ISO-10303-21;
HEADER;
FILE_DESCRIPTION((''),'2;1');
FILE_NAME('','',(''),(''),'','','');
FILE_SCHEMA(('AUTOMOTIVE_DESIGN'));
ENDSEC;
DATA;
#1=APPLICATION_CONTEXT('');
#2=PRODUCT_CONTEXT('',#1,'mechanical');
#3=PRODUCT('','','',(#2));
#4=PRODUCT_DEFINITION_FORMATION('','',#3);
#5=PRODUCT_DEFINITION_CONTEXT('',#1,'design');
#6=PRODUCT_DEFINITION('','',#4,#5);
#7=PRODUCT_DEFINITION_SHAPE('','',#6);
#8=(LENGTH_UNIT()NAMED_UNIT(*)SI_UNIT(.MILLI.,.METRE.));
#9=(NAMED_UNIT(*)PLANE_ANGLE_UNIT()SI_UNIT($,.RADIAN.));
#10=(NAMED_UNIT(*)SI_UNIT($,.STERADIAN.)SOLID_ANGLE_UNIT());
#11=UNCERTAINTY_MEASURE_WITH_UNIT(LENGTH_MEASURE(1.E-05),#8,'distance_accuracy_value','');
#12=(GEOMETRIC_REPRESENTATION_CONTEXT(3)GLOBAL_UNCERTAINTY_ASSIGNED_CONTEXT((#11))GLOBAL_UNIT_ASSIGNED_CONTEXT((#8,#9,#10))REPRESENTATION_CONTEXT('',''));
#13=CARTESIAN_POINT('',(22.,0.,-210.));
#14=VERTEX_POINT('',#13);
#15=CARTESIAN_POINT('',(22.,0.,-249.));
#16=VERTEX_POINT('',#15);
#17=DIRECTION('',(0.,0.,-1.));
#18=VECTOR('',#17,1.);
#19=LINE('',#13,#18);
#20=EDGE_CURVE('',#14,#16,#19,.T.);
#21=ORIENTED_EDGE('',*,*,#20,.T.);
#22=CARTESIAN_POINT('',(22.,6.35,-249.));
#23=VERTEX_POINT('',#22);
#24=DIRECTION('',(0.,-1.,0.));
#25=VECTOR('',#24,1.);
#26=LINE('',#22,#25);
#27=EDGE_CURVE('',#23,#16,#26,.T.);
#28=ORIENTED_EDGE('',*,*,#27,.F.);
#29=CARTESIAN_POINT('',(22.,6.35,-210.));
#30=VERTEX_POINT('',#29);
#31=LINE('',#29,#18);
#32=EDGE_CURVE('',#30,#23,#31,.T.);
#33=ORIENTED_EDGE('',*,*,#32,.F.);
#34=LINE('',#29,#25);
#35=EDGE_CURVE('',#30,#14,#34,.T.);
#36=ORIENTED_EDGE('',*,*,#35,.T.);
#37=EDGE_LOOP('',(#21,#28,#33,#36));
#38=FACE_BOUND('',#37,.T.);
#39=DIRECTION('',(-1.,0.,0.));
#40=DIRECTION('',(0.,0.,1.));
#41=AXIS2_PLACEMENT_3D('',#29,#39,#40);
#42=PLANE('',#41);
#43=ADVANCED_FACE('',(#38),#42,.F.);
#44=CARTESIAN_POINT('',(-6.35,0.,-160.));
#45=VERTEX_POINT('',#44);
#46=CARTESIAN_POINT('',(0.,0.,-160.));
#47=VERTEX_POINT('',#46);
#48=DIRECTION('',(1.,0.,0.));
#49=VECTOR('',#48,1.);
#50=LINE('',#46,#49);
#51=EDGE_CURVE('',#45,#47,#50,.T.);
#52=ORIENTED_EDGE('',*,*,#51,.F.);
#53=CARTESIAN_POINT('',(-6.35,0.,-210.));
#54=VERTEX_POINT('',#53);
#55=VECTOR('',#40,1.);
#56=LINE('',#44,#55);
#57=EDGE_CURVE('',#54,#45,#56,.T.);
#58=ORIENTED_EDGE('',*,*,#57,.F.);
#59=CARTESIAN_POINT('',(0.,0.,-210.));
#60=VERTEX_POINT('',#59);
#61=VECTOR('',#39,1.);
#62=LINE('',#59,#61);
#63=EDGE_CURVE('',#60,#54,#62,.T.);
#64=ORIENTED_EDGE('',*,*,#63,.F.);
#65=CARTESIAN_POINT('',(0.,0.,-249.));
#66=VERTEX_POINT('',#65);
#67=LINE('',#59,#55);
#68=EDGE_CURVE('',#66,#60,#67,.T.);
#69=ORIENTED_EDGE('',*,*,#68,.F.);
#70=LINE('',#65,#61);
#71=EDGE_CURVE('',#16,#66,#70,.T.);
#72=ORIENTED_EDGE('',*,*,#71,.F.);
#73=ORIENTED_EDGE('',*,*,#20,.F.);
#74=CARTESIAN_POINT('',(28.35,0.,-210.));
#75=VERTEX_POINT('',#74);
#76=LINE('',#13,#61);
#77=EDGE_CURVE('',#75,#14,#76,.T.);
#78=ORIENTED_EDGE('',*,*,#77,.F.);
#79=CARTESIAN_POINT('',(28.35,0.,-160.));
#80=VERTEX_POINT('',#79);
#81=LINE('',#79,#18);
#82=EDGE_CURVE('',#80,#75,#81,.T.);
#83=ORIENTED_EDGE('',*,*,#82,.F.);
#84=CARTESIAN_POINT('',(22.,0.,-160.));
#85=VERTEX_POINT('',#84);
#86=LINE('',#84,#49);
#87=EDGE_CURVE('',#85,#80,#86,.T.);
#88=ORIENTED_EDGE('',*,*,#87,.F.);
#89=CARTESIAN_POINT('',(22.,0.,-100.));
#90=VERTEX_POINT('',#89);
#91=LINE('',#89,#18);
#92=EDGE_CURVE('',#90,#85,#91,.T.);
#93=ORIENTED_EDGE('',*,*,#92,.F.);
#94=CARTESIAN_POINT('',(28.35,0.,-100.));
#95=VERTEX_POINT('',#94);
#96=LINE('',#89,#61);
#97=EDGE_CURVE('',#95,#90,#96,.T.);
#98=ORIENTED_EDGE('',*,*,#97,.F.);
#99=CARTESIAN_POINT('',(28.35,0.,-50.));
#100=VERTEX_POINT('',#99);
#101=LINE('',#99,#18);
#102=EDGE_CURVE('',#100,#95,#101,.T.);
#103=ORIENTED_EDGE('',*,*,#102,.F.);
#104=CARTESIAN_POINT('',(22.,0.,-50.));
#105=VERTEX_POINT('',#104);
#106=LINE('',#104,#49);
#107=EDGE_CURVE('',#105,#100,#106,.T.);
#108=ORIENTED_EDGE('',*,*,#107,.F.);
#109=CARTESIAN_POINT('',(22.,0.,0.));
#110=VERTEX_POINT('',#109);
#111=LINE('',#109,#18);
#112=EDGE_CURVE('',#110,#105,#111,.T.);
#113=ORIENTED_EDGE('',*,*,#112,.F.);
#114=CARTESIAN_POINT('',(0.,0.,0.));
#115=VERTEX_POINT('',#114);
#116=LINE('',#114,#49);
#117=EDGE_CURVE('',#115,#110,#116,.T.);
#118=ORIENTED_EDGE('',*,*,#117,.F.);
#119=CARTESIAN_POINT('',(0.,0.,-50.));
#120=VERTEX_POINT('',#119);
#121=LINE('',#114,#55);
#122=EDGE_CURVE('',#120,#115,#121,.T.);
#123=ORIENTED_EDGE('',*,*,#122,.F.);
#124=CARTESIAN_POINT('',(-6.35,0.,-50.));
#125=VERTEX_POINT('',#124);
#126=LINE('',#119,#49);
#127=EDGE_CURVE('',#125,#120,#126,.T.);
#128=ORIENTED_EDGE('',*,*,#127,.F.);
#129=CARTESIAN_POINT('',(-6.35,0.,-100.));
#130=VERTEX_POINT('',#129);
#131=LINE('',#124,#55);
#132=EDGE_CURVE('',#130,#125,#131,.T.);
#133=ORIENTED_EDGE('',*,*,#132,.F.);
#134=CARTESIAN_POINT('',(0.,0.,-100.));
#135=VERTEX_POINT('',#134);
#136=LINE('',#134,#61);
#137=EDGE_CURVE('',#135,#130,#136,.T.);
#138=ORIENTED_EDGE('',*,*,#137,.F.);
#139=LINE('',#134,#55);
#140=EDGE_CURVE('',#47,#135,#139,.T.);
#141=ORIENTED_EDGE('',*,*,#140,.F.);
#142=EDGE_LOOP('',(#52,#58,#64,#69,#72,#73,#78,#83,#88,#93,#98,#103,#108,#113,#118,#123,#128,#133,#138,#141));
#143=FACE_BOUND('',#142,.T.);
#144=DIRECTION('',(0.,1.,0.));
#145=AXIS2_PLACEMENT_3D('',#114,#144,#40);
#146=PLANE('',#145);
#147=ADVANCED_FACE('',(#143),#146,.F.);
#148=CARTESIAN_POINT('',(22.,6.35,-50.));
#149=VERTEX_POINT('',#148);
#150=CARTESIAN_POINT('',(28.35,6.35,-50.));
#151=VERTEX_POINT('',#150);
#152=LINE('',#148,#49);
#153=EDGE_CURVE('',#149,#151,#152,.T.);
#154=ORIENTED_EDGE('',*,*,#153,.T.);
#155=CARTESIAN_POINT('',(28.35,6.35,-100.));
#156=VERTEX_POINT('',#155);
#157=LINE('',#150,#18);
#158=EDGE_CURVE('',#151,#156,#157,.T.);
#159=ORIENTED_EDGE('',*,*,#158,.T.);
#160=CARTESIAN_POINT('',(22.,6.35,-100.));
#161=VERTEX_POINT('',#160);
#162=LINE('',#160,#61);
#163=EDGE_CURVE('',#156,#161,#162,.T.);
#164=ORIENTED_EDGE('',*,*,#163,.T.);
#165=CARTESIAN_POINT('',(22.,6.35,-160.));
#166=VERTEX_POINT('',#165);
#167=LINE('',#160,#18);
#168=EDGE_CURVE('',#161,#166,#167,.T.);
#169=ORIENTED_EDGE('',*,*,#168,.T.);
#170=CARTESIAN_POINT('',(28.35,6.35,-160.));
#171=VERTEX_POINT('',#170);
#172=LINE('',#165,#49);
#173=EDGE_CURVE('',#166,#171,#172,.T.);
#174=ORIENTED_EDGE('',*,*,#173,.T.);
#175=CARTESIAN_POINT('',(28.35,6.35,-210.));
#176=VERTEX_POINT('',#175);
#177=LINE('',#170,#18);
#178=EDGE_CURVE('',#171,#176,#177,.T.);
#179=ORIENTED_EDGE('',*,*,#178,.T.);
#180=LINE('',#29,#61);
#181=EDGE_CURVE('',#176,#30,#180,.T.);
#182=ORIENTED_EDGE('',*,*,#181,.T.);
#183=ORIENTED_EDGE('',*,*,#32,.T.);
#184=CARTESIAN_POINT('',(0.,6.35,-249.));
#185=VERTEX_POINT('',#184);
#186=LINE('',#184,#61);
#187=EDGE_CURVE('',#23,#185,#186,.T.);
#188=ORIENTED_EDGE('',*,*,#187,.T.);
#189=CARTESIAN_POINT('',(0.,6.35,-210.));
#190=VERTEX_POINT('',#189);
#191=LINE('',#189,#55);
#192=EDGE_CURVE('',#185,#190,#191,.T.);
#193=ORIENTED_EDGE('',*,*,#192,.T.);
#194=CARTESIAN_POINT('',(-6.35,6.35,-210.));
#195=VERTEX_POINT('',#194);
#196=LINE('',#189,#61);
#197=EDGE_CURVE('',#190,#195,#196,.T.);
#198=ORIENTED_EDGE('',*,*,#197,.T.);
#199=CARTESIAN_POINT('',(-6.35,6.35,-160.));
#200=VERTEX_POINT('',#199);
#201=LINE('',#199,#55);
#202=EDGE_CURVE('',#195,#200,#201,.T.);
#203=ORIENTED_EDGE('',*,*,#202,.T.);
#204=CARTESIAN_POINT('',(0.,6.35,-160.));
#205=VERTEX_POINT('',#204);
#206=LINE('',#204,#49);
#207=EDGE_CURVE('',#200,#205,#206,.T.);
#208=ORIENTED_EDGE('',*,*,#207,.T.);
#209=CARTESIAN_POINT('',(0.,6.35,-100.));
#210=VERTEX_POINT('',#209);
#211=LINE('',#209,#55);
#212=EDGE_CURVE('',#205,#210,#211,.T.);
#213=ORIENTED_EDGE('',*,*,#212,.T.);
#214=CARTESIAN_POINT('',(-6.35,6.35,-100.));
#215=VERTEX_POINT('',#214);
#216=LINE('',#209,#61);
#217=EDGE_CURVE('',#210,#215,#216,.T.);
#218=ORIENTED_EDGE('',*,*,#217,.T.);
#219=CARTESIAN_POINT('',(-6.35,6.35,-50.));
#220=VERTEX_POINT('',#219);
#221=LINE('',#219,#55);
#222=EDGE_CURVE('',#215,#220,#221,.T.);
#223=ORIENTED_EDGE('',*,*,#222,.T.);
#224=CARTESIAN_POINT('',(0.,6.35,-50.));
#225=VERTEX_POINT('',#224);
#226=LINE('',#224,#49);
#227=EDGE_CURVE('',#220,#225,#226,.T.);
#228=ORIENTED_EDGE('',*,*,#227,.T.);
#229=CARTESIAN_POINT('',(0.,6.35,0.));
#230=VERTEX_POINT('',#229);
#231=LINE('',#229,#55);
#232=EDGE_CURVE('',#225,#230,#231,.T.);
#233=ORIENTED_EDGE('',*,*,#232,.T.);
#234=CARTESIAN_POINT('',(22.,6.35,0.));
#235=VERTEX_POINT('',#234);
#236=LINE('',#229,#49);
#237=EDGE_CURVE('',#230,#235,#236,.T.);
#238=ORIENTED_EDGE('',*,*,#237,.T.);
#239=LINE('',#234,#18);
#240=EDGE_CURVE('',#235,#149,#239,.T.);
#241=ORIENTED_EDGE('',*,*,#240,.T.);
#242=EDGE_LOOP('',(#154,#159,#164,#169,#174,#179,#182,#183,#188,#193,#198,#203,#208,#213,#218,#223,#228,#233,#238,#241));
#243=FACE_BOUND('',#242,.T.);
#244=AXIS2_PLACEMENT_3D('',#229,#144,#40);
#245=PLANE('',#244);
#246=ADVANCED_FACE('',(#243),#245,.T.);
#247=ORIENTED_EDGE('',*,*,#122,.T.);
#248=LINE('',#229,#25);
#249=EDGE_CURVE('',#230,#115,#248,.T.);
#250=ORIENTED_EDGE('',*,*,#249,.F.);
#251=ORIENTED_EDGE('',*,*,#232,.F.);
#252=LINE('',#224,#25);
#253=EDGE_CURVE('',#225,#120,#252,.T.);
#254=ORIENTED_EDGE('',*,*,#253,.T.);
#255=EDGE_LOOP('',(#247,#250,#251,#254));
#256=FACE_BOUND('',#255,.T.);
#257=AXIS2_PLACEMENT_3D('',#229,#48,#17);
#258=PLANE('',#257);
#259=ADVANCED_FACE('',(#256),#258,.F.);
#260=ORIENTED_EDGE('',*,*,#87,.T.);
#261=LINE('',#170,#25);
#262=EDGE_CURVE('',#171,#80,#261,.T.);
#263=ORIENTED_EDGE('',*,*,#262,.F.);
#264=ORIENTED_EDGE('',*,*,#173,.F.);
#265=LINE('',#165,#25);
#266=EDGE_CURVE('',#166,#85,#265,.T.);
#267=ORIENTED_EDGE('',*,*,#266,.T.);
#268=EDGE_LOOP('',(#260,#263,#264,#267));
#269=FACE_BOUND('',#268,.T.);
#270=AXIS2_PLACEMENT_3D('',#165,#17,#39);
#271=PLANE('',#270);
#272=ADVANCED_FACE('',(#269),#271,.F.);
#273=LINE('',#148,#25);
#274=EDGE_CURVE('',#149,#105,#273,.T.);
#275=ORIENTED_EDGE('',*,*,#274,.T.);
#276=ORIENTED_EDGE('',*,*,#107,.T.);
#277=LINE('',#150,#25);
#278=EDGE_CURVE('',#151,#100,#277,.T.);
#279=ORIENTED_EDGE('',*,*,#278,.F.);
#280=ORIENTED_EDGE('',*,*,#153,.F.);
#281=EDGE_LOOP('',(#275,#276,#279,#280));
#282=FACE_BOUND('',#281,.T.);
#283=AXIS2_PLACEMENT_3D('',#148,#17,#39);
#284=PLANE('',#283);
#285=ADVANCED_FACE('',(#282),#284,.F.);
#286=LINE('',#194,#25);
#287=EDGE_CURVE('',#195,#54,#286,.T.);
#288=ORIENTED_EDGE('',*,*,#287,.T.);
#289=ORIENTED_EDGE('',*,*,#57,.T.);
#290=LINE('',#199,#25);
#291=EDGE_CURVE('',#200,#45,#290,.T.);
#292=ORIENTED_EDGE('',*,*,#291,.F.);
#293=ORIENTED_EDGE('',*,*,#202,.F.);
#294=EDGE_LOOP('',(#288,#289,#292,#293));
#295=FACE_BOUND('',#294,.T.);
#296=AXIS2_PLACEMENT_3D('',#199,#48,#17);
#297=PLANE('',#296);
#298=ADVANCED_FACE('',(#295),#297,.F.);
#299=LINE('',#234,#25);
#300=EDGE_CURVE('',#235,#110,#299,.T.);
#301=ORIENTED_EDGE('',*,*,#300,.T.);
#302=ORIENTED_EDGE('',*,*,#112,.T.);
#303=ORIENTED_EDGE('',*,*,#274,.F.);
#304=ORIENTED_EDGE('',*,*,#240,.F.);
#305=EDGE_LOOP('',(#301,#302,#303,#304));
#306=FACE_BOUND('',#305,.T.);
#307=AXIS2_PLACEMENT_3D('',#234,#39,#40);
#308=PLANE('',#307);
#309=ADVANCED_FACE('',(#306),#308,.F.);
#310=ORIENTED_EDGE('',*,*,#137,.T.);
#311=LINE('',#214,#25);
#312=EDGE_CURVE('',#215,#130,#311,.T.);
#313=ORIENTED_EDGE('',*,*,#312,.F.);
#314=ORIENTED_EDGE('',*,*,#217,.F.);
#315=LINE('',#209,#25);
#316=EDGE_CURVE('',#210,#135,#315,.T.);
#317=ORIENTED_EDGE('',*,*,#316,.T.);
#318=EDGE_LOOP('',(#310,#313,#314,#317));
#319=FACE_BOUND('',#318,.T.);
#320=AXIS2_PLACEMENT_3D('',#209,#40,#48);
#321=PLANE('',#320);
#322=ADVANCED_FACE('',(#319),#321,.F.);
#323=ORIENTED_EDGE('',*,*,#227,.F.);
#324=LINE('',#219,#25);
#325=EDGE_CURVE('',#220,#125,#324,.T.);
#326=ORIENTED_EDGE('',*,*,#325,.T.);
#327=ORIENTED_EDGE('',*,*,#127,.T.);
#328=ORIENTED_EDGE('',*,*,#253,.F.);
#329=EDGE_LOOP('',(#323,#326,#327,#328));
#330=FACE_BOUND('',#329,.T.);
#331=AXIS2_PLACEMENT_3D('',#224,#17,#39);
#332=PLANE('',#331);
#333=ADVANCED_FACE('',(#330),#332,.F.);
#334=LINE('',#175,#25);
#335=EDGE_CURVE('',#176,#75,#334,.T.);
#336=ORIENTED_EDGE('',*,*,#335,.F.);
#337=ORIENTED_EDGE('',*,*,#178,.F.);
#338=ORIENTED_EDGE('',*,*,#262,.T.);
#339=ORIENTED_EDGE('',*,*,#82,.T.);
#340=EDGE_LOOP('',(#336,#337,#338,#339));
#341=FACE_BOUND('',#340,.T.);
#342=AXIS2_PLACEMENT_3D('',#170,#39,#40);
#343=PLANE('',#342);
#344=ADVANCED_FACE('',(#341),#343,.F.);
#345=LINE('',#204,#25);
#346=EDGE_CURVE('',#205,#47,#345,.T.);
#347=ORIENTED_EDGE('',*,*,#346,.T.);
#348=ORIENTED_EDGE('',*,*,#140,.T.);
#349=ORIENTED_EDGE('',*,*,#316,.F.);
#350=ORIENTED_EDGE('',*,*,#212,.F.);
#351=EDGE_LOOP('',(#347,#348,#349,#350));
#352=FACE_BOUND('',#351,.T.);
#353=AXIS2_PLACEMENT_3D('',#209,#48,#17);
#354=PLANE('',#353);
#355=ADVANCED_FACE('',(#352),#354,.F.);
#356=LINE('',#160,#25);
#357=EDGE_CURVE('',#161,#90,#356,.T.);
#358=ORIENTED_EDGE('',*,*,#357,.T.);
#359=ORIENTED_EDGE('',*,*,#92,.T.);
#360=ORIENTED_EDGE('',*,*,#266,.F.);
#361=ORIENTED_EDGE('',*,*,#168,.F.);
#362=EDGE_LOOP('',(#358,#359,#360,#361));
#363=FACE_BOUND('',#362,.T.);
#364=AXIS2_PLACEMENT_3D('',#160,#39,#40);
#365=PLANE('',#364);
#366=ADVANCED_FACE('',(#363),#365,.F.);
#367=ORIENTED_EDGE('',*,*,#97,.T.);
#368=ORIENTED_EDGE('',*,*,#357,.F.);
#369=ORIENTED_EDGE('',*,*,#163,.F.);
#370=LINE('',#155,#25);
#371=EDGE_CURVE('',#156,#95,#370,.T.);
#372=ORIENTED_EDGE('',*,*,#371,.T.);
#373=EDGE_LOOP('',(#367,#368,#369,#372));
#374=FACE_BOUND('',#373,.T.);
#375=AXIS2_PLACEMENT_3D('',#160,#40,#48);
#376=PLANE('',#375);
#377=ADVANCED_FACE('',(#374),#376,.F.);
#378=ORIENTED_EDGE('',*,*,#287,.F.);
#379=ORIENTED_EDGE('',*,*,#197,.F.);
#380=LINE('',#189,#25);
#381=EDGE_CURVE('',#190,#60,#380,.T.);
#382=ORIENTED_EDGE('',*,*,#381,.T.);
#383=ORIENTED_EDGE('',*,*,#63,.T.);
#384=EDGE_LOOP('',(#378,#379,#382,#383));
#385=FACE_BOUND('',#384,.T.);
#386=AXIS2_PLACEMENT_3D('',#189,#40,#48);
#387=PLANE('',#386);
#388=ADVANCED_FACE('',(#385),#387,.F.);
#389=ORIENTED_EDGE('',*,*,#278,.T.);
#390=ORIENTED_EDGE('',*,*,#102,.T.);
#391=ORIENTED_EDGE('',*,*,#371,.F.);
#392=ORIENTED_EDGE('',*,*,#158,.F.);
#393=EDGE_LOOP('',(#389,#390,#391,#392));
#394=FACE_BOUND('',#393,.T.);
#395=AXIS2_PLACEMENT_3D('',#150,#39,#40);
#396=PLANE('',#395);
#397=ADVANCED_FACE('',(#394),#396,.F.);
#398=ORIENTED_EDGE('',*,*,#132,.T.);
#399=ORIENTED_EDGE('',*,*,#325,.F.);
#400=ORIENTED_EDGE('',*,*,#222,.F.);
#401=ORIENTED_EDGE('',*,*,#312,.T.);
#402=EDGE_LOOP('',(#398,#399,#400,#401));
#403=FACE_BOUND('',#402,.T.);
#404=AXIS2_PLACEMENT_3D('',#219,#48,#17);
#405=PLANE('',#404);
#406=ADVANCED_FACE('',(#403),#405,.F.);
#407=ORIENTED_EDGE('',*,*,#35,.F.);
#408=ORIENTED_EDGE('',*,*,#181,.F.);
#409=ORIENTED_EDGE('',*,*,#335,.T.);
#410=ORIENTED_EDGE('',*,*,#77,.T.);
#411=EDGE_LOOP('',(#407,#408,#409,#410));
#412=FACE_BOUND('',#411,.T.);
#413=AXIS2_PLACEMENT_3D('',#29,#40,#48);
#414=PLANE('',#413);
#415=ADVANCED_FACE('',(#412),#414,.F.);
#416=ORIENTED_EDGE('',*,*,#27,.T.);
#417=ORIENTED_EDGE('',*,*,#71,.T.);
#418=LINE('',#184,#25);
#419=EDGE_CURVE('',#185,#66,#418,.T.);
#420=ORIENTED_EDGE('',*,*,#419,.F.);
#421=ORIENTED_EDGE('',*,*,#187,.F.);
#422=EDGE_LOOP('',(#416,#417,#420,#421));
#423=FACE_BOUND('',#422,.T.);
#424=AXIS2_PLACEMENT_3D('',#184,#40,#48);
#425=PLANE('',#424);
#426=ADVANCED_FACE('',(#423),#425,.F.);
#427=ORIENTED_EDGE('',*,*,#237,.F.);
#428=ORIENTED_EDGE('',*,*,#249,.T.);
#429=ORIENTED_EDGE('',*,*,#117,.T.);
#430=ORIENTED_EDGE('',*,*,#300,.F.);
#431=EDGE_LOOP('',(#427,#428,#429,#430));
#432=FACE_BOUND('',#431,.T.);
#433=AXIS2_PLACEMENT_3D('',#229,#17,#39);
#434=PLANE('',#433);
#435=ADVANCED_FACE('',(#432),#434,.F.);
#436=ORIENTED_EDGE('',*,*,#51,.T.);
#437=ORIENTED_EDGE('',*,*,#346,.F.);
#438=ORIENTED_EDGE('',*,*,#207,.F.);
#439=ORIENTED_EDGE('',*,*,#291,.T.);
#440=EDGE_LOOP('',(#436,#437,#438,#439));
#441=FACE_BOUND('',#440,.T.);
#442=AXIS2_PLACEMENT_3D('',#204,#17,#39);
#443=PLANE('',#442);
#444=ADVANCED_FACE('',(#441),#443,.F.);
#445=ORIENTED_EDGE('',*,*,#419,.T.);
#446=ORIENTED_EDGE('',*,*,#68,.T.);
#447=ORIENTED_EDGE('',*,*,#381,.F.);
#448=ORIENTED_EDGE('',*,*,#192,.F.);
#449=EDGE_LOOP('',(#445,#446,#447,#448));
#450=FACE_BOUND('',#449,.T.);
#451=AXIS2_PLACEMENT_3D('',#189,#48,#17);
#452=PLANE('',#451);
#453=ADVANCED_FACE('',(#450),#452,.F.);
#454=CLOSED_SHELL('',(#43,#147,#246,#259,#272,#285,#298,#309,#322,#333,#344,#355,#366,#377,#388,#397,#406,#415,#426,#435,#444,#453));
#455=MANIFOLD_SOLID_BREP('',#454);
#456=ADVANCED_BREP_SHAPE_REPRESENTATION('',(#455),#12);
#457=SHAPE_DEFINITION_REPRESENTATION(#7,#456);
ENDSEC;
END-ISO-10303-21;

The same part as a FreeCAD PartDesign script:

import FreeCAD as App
import Part
import Sketcher
from FreeCAD import Vector


def add_polygon(sketch, points):
    """Adds a closed chain of lines whose ends are joined by coincident constraints."""
    first, n = sketch.GeometryCount, len(points)
    for a, b in zip(points, points[1:] + points[:1]):
        sketch.addGeometry(Part.LineSegment(App.Vector(*a, 0), App.Vector(*b, 0)), False)
    for i in range(n):
        sketch.addConstraint(Sketcher.Constraint("Coincident", first + i, 2, first + (i + 1) % n, 1))

doc = App.newDocument("Part")
body = doc.addObject("PartDesign::Body", "Body")

sketch1 = body.newObject("Sketcher::SketchObject", "Sketch")
sketch1.AttachmentSupport = (doc.getObject("XZ_Plane"), [""])
sketch1.MapMode = "FlatFace"
add_polygon(sketch1, [(0, 0), (22, 0), (22, -50), (28.35, -50), (28.35, -100), (22, -100), (22, -160), (28.35, -160), (28.35, -210), (22, -210), (22, -249), (0, -249), (0, -210), (-6.35, -210), (-6.35, -160), (0, -160), (0, -100), (-6.35, -100), (-6.35, -50), (0, -50)])
sketch1.addConstraint([
    Sketcher.Constraint("Horizontal", 0),
    Sketcher.Constraint("Vertical", 1),
    Sketcher.Constraint("Horizontal", 2),
    Sketcher.Constraint("Vertical", 3),
    Sketcher.Constraint("Horizontal", 4),
    Sketcher.Constraint("Vertical", 5),
    Sketcher.Constraint("Horizontal", 6),
    Sketcher.Constraint("Vertical", 7),
    Sketcher.Constraint("Horizontal", 8),
    Sketcher.Constraint("Vertical", 9),
    Sketcher.Constraint("Horizontal", 10),
    Sketcher.Constraint("Vertical", 11),
    Sketcher.Constraint("Horizontal", 12),
    Sketcher.Constraint("Vertical", 13),
    Sketcher.Constraint("Horizontal", 14),
    Sketcher.Constraint("Vertical", 15),
    Sketcher.Constraint("Horizontal", 16),
    Sketcher.Constraint("Vertical", 17),
    Sketcher.Constraint("Horizontal", 18),
    Sketcher.Constraint("Vertical", 19),
    Sketcher.Constraint("Coincident", 19, 2, -1, 1),
    Sketcher.Constraint("PointOnObject", 10, 2, -2),
    Sketcher.Constraint("PointOnObject", 14, 2, -2),
    Sketcher.Constraint("Horizontal", 8, 2, 11, 2),
    Sketcher.Constraint("Horizontal", 6, 2, 13, 2),
    Sketcher.Constraint("Horizontal", 4, 2, 15, 2),
    Sketcher.Constraint("Horizontal", 2, 2, 17, 2),
    Sketcher.Constraint("Vertical", 1, 2, 4, 2),
    Sketcher.Constraint("Vertical", 3, 2, 6, 2),
    Sketcher.Constraint("Vertical", 5, 2, 8, 2),
    Sketcher.Constraint("Vertical", 13, 2, 16, 2),
    Sketcher.Constraint("Equal", 8, 12),
    Sketcher.Constraint("Equal", 1, 3),
    Sketcher.Constraint("Equal", 3, 7),
    Sketcher.Constraint("DistanceX", 0, 1, 0, 2, 22.0),
    Sketcher.Constraint("DistanceY", 1, 2, 1, 1, 50.0),
    Sketcher.Constraint("DistanceY", 5, 2, 5, 1, 60.0),
    Sketcher.Constraint("DistanceY", 9, 2, 9, 1, 39.0),
    Sketcher.Constraint("DistanceX", 2, 1, 2, 2, 6.35),
])
pad1 = body.newObject("PartDesign::Pad", "Pad")
pad1.Profile = sketch1
pad1.Length = 6.35
pad1.Reversed = True

doc.recompute()
